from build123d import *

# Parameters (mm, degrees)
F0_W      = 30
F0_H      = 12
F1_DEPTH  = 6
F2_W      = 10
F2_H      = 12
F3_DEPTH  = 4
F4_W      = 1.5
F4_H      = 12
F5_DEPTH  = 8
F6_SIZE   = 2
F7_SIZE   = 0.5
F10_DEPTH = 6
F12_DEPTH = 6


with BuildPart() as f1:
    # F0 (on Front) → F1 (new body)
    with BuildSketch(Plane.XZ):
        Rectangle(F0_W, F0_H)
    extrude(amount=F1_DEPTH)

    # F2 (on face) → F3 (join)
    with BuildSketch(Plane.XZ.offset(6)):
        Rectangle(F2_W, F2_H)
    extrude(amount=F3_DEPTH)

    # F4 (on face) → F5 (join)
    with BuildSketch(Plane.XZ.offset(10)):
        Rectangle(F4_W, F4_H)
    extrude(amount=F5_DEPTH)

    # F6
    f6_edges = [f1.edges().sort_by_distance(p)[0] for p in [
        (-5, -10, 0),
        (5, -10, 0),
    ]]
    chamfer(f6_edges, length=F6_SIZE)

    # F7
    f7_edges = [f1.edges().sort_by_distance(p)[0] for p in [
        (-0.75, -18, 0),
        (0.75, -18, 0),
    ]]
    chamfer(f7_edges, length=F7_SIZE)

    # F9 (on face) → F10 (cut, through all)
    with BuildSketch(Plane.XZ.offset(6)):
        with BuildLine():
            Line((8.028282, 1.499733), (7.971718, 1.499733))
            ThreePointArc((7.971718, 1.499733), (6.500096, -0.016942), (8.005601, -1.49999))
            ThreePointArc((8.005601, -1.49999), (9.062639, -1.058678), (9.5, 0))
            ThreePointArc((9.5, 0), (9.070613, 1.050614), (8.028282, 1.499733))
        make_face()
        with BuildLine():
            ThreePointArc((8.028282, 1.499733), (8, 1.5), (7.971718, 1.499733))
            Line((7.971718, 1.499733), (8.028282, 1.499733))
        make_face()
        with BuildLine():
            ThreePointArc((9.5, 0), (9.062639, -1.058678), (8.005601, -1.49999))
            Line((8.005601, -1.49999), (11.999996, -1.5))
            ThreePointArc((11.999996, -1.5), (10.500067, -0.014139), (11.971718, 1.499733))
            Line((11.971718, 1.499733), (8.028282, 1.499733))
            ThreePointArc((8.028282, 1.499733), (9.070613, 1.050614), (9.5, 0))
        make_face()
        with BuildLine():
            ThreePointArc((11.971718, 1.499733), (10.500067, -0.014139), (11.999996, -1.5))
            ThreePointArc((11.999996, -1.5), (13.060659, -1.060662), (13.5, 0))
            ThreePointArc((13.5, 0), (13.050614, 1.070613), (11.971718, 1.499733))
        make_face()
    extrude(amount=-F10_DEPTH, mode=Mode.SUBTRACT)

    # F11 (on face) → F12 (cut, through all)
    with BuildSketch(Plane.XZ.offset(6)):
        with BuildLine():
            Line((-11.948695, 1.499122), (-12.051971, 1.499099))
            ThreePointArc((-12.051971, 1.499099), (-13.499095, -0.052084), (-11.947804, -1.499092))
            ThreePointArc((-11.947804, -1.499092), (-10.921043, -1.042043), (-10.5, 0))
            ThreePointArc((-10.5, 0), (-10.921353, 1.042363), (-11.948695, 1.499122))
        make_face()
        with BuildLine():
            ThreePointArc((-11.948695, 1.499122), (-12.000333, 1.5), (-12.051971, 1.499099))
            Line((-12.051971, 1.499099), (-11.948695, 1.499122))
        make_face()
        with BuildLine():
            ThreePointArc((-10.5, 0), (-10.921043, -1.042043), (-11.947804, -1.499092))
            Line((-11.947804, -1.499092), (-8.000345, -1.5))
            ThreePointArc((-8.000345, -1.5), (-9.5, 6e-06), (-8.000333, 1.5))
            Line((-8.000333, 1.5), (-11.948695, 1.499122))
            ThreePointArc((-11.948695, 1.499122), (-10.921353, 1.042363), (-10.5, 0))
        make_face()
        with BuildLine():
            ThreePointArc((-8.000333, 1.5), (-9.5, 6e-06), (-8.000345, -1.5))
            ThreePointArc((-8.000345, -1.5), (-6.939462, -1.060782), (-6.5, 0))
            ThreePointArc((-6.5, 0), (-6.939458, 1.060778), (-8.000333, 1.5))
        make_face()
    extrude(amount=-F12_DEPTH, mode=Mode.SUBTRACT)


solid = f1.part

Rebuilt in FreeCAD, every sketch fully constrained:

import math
import FreeCAD as App
import Part
import Sketcher
from FreeCAD import Vector


def edges_at(feature, points):
    """Names of the edges that pass closest to the given points."""
    edges = feature.Shape.Edges
    near = lambda p: min(range(len(edges)), key=lambda i: edges[i].distToShape(Part.Vertex(*p))[0])
    return sorted({f"Edge{near(p) + 1}" for p in points})

doc = App.newDocument("Part")
body = doc.addObject("PartDesign::Body", "Body")

# Sketch on XZ plane
sketch1 = body.newObject("Sketcher::SketchObject", "Sketch")
sketch1.AttachmentSupport = (doc.getObject("XZ_Plane"), [""])
sketch1.MapMode = "FlatFace"
sketch1.addGeometry([
    Part.LineSegment(Vector(-15, 6, 0), Vector(-15, -6, 0)),
    Part.LineSegment(Vector(-15, -6, 0), Vector(15, -6, 0)),
    Part.LineSegment(Vector(15, -6, 0), Vector(15, 6, 0)),
    Part.LineSegment(Vector(15, 6, 0), Vector(-15, 6, 0)),
], False)
sketch1.addConstraint([
    Sketcher.Constraint("Coincident", 0, 2, 1, 1),
    Sketcher.Constraint("Coincident", 1, 2, 2, 1),
    Sketcher.Constraint("Coincident", 2, 2, 3, 1),
    Sketcher.Constraint("Coincident", 3, 2, 0, 1),
    Sketcher.Constraint("Vertical", 0),
    Sketcher.Constraint("Horizontal", 1),
    Sketcher.Constraint("Vertical", 2),
    Sketcher.Constraint("Horizontal", 3),
    Sketcher.Constraint("Symmetric", 0, 2, 2, 2, -1, 1),
    Sketcher.Constraint("DistanceX", 1, 1, 1, 2, 30.0),
    Sketcher.Constraint("DistanceY", 0, 2, 0, 1, 12.0),
])
pad1 = body.newObject("PartDesign::Pad", "Pad")
pad1.Profile = sketch1
pad1.Length = 6

# Sketch on XZ plane
sketch2 = body.newObject("Sketcher::SketchObject", "Sketch001")
sketch2.AttachmentSupport = (doc.getObject("XZ_Plane"), [""])
sketch2.MapMode = "FlatFace"
sketch2.AttachmentOffset = App.Placement(Vector(0, 0, 6), App.Rotation())
sketch2.addGeometry([
    Part.LineSegment(Vector(-5, 6, 0), Vector(-5, -6, 0)),
    Part.LineSegment(Vector(-5, -6, 0), Vector(5, -6, 0)),
    Part.LineSegment(Vector(5, -6, 0), Vector(5, 6, 0)),
    Part.LineSegment(Vector(5, 6, 0), Vector(-5, 6, 0)),
], False)
sketch2.addConstraint([
    Sketcher.Constraint("Coincident", 0, 2, 1, 1),
    Sketcher.Constraint("Coincident", 1, 2, 2, 1),
    Sketcher.Constraint("Coincident", 2, 2, 3, 1),
    Sketcher.Constraint("Coincident", 3, 2, 0, 1),
    Sketcher.Constraint("Vertical", 0),
    Sketcher.Constraint("Horizontal", 1),
    Sketcher.Constraint("Vertical", 2),
    Sketcher.Constraint("Horizontal", 3),
    Sketcher.Constraint("Symmetric", 0, 2, 2, 2, -1, 1),
    Sketcher.Constraint("DistanceX", 1, 1, 1, 2, 10.0),
    Sketcher.Constraint("DistanceY", 0, 2, 0, 1, 12.0),
])
pad2 = body.newObject("PartDesign::Pad", "Pad001")
pad2.Profile = sketch2
pad2.Length = 4

# Sketch on XZ plane
sketch3 = body.newObject("Sketcher::SketchObject", "Sketch002")
sketch3.AttachmentSupport = (doc.getObject("XZ_Plane"), [""])
sketch3.MapMode = "FlatFace"
sketch3.AttachmentOffset = App.Placement(Vector(0, 0, 10), App.Rotation())
sketch3.addGeometry([
    Part.LineSegment(Vector(-0.8, 6, 0), Vector(-0.8, -6, 0)),
    Part.LineSegment(Vector(-0.8, -6, 0), Vector(0.8, -6, 0)),
    Part.LineSegment(Vector(0.8, -6, 0), Vector(0.8, 6, 0)),
    Part.LineSegment(Vector(0.8, 6, 0), Vector(-0.8, 6, 0)),
], False)
sketch3.addConstraint([
    Sketcher.Constraint("Coincident", 0, 2, 1, 1),
    Sketcher.Constraint("Coincident", 1, 2, 2, 1),
    Sketcher.Constraint("Coincident", 2, 2, 3, 1),
    Sketcher.Constraint("Coincident", 3, 2, 0, 1),
    Sketcher.Constraint("Vertical", 0),
    Sketcher.Constraint("Horizontal", 1),
    Sketcher.Constraint("Vertical", 2),
    Sketcher.Constraint("Horizontal", 3),
    Sketcher.Constraint("Symmetric", 0, 2, 2, 2, -1, 1),
    Sketcher.Constraint("DistanceY", 0, 2, 0, 1, 12.0),
    Sketcher.Constraint("DistanceX", 1, 1, 1, 2, 1.5),
])
pad3 = body.newObject("PartDesign::Pad", "Pad002")
pad3.Profile = sketch3
pad3.Length = 8
doc.recompute()

chamfer = body.newObject("PartDesign::Chamfer", "Chamfer")
chamfer.Base = (pad3, edges_at(pad3, [(-5, -10, 0), (5, -10, 0)]))
chamfer.Size = 2
doc.recompute()

chamfer2 = body.newObject("PartDesign::Chamfer", "Chamfer001")
chamfer2.Base = (chamfer, edges_at(chamfer, [(-0.75, -18, 0), (0.75, -18, 0)]))
chamfer2.Size = 0.5

# Sketch on XZ plane
sketch4 = body.newObject("Sketcher::SketchObject", "Sketch003")
sketch4.AttachmentSupport = (doc.getObject("XZ_Plane"), [""])
sketch4.MapMode = "FlatFace"
sketch4.AttachmentOffset = App.Placement(Vector(0, 0, 6), App.Rotation())
sketch4.addGeometry([
    Part.ArcOfCircle(Part.Circle(Vector(8, 0, 0), Vector(0, 0, 1), 1.5), math.radians(91), math.radians(270)),  # 0
    Part.LineSegment(Vector(8.01, -1.5, 0), Vector(12, -1.5, 0)),  # 1
    Part.ArcOfCircle(Part.Circle(Vector(12, 0, 0), Vector(0, 0, 1), 1.5), math.radians(-90), math.radians(0)),  # 2
    Part.ArcOfCircle(Part.Circle(Vector(12, 0, 0), Vector(0, 0, 1), 1.5), math.radians(0), math.radians(91)),  # 3
    Part.LineSegment(Vector(11.97, 1.5, 0), Vector(8.03, 1.5, 0)),  # 4
    Part.ArcOfCircle(Part.Circle(Vector(8, 0, 0), Vector(0, 0, 1), 1.5), math.radians(88.92), math.radians(91.08)),  # 5
], False)
sketch4.addConstraint([
    Sketcher.Constraint("Coincident", 0, 2, 1, 1),
    Sketcher.Constraint("Tangent", 1, 2, 2, 1),
    Sketcher.Constraint("Tangent", 2, 2, 3, 1),
    Sketcher.Constraint("Coincident", 3, 2, 4, 1),
    Sketcher.Constraint("Coincident", 4, 2, 5, 1),
    Sketcher.Constraint("Coincident", 5, 2, 0, 1),
    Sketcher.Constraint("Horizontal", 4),
    Sketcher.Constraint("Equal", 0, 2),
    Sketcher.Constraint("Equal", 2, 3),
    Sketcher.Constraint("PointOnObject", 0, 3, -1),
    Sketcher.Constraint("PointOnObject", 2, 3, -1),
    Sketcher.Constraint("PointOnObject", 2, 2, -1),
    Sketcher.Constraint("Horizontal", 4, 2, 5, 2),
    Sketcher.Constraint("Vertical", 0, 3, 5, 3),
    Sketcher.Constraint("Radius", 0, 1.5),
    Sketcher.Constraint("DistanceX", -1, 1, 0, 3, 8.0),
    Sketcher.Constraint("DistanceX", -1, 1, 2, 3, 12.000001),
    Sketcher.Constraint("Radius", 5, 1.49802),
    Sketcher.Constraint("DistanceX", -1, 1, 0, 2, 8.005601),
    Sketcher.Constraint("DistanceX", 4, 2, 4, 1, 3.943436),
])
pocket1 = body.newObject("PartDesign::Pocket", "Pocket")
pocket1.Profile = sketch4
pocket1.Type = "ThroughAll"

# Sketch on XZ plane
sketch5 = body.newObject("Sketcher::SketchObject", "Sketch004")
sketch5.AttachmentSupport = (doc.getObject("XZ_Plane"), [""])
sketch5.MapMode = "FlatFace"
sketch5.AttachmentOffset = App.Placement(Vector(0, 0, 6), App.Rotation())
sketch5.addGeometry([
    Part.ArcOfCircle(Part.Circle(Vector(-12, 0, 0), Vector(0, 0, 1), 1.5), math.radians(92), math.radians(272)),  # 0
    Part.LineSegment(Vector(-11.95, -1.5, 0), Vector(-8, -1.5, 0)),  # 1
    Part.ArcOfCircle(Part.Circle(Vector(-8, 0, 0), Vector(0, 0, 1), 1.5), math.radians(-90), math.radians(0)),  # 2
    Part.ArcOfCircle(Part.Circle(Vector(-8, 0, 0), Vector(0, 0, 1), 1.5), math.radians(0), math.radians(90)),  # 3
    Part.LineSegment(Vector(-8, 1.5, 0), Vector(-11.95, 1.5, 0)),  # 4
    Part.ArcOfCircle(Part.Circle(Vector(-12, 0, 0), Vector(0, 0, 1), 1.5), math.radians(88.04), math.radians(91.99)),  # 5
], False)
sketch5.addConstraint([
    Sketcher.Constraint("Coincident", 0, 2, 1, 1),
    Sketcher.Constraint("Tangent", 1, 2, 2, 1),
    Sketcher.Constraint("Tangent", 2, 2, 3, 1),
    Sketcher.Constraint("Tangent", 3, 2, 4, 1),
    Sketcher.Constraint("Coincident", 4, 2, 5, 1),
    Sketcher.Constraint("Coincident", 5, 2, 0, 1),
    Sketcher.Constraint("Equal", 0, 2),
    Sketcher.Constraint("Equal", 2, 3),
    Sketcher.Constraint("PointOnObject", 0, 3, -1),
    Sketcher.Constraint("PointOnObject", 2, 3, -1),
    Sketcher.Constraint("PointOnObject", 2, 2, -1),
    Sketcher.Constraint("Vertical", 0, 3, 5, 3),
    Sketcher.Constraint("Radius", 0, 1.5),
    Sketcher.Constraint("DistanceX", 0, 3, -1, 1, 11.999999),
    Sketcher.Constraint("DistanceX", 2, 3, -1, 1, 8.000001),
    Sketcher.Constraint("Radius", 5, 1.499311),
    Sketcher.Constraint("DistanceY", -1, 1, 5, 2, 1.499099),
    Sketcher.Constraint("Distance", 1, 3.947459),
    Sketcher.Constraint("DistanceX", 4, 2, 0, 2, 0.000891),
])
pocket2 = body.newObject("PartDesign::Pocket", "Pocket001")
pocket2.Profile = sketch5
pocket2.Type = "ThroughAll"

doc.recompute()
